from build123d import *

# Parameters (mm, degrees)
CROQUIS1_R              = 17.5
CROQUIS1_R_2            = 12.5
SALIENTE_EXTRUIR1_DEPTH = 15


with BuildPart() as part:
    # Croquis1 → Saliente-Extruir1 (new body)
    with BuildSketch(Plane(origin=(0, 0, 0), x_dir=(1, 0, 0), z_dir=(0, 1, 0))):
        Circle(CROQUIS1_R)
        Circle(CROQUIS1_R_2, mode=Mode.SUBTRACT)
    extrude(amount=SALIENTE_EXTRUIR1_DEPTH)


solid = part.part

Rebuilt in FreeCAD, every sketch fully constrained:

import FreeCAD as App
import Part
import Sketcher
Q = App.Units.Quantity

doc = App.newDocument("Part")
params = doc.addObject("Spreadsheet::Sheet", "Params")
for row, (alias, value) in enumerate([
    ("sketch1_diameter", "35 mm"),
    ("sketch1_diameter2", "25 mm"),
    ("pad1_length", "15 mm"),
], start=1):
    params.set(f"A{row}", alias)
    params.set(f"B{row}", "=" + value)
    params.setAlias(f"B{row}", alias)

body = doc.addObject("PartDesign::Body", "Body")

# Sketch on XZ plane
sketch1 = body.newObject("Sketcher::SketchObject", "Sketch")
sketch1.AttachmentSupport = (doc.getObject("XZ_Plane"), [""])
sketch1.MapMode = "FlatFace"
sketch1.addGeometry([
    Part.Circle(App.Vector(0, 0, 0), App.Vector(0, 0, 1), 18),
    Part.Circle(App.Vector(0, 0, 0), App.Vector(0, 0, 1), 12),
], False)
sketch1.addConstraint([
    Sketcher.Constraint("Coincident", 0, 3, -1, 1),
    Sketcher.Constraint("Coincident", 1, 3, -1, 1),
    Sketcher.Constraint("Diameter", 0, Q("35 mm")),
    Sketcher.Constraint("Diameter", 1, Q("25 mm")),
])
sketch1.setExpression("Constraints[2]", "Params.sketch1_diameter")
sketch1.setExpression("Constraints[3]", "Params.sketch1_diameter2")
pad1 = body.newObject("PartDesign::Pad", "Pad")
pad1.Profile = sketch1
pad1.setExpression("Length", "Params.pad1_length")
pad1.Reversed = True

doc.recompute()
